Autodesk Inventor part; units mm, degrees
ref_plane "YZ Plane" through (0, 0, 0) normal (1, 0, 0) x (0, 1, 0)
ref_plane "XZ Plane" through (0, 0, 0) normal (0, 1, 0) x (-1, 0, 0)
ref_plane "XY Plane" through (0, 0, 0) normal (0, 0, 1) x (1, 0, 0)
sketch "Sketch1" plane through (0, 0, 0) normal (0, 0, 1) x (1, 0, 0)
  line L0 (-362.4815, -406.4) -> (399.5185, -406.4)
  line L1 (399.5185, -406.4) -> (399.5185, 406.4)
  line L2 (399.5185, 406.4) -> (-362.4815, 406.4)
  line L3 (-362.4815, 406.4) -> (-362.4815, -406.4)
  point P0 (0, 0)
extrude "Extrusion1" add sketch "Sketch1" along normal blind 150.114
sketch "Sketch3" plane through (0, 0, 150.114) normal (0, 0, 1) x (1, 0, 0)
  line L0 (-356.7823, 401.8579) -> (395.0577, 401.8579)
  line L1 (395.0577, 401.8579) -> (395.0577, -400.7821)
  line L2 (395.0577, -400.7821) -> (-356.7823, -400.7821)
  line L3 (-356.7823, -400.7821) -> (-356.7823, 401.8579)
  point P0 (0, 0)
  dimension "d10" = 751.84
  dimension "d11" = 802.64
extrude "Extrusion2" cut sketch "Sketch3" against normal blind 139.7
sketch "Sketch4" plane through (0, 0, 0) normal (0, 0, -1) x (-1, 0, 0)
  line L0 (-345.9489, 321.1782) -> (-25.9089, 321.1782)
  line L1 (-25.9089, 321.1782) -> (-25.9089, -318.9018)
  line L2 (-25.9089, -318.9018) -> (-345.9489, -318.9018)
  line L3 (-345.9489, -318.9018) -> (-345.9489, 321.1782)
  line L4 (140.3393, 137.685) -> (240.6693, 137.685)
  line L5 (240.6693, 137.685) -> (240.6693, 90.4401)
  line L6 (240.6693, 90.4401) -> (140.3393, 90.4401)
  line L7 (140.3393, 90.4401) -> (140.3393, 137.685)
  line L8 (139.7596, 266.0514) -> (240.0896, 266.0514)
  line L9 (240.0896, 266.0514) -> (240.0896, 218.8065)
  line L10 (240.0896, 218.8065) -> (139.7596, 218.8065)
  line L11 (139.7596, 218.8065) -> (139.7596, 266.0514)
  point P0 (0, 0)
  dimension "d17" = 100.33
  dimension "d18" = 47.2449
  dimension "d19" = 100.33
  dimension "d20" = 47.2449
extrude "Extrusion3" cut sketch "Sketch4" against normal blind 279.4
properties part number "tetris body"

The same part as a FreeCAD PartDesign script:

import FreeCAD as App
import Part
import Sketcher
Q = App.Units.Quantity

doc = App.newDocument("Part")
body = doc.addObject("PartDesign::Body", "Body")

# Sketch on XY plane
sketch1 = body.newObject("Sketcher::SketchObject", "Sketch")
sketch1.AttachmentSupport = (doc.getObject("XY_Plane"), [""])
sketch1.MapMode = "FlatFace"
sketch1.addGeometry([
    Part.LineSegment(App.Vector(-362.4815, 406.4, 0), App.Vector(-362.4815, -406.4, 0)),
    Part.LineSegment(App.Vector(-362.4815, -406.4, 0), App.Vector(399.5185, -406.4, 0)),
    Part.LineSegment(App.Vector(399.5185, -406.4, 0), App.Vector(399.5185, 406.4, 0)),
    Part.LineSegment(App.Vector(399.5185, 406.4, 0), App.Vector(-362.4815, 406.4, 0)),
], False)
sketch1.addConstraint([
    Sketcher.Constraint("Coincident", 0, 2, 1, 1),
    Sketcher.Constraint("Coincident", 1, 2, 2, 1),
    Sketcher.Constraint("Coincident", 2, 2, 3, 1),
    Sketcher.Constraint("Coincident", 3, 2, 0, 1),
    Sketcher.Constraint("Vertical", 0),
    Sketcher.Constraint("Horizontal", 1),
    Sketcher.Constraint("Vertical", 2),
    Sketcher.Constraint("Horizontal", 3),
    Sketcher.Constraint("DistanceX", 1, 1, 1, 2, Q("30 in")),
    Sketcher.Constraint("DistanceY", 0, 2, 0, 1, Q("32 in")),
    Sketcher.Constraint("DistanceY", 0, 2, -1, 1, Q("16 in")),
    Sketcher.Constraint("DistanceX", 0, 2, -1, 1, Q("362.4815 mm")),
])
pad1 = body.newObject("PartDesign::Pad", "Pad")
pad1.Profile = sketch1
pad1.Length = Q("5.91 in")

# Sketch on XY plane
sketch2 = body.newObject("Sketcher::SketchObject", "Sketch001")
sketch2.AttachmentSupport = (doc.getObject("XY_Plane"), [""])
sketch2.MapMode = "FlatFace"
sketch2.AttachmentOffset = App.Placement(App.Vector(0, 0, 5.91 * 25.4), App.Rotation())
sketch2.addGeometry([
    Part.LineSegment(App.Vector(395.0577, 401.8579, 0), App.Vector(-356.7823, 401.8579, 0)),
    Part.LineSegment(App.Vector(-356.7823, 401.8579, 0), App.Vector(-356.7823, -400.7821, 0)),
    Part.LineSegment(App.Vector(-356.7823, -400.7821, 0), App.Vector(395.0577, -400.7821, 0)),
    Part.LineSegment(App.Vector(395.0577, -400.7821, 0), App.Vector(395.0577, 401.8579, 0)),
], False)
sketch2.addConstraint([
    Sketcher.Constraint("Coincident", 0, 2, 1, 1),
    Sketcher.Constraint("Coincident", 1, 2, 2, 1),
    Sketcher.Constraint("Coincident", 2, 2, 3, 1),
    Sketcher.Constraint("Coincident", 3, 2, 0, 1),
    Sketcher.Constraint("Horizontal", 0),
    Sketcher.Constraint("Vertical", 1),
    Sketcher.Constraint("Horizontal", 2),
    Sketcher.Constraint("Vertical", 3),
    Sketcher.Constraint("DistanceX", 0, 2, 0, 1, Q("29.6 in")),
    Sketcher.Constraint("DistanceY", 1, 2, 1, 1, Q("31.6 in")),
    Sketcher.Constraint("DistanceX", 0, 2, -1, 1, Q("356.7823 mm")),
    Sketcher.Constraint("DistanceY", -1, 1, 0, 2, Q("401.858 mm")),
])
pocket1 = body.newObject("PartDesign::Pocket", "Pocket")
pocket1.Profile = sketch2
pocket1.Length = Q("5.5 in")

# Sketch on XY plane
sketch3 = body.newObject("Sketcher::SketchObject", "Sketch002")
sketch3.AttachmentSupport = (doc.getObject("XY_Plane"), [""])
sketch3.MapMode = "FlatFace"
sketch3.addGeometry([
    Part.LineSegment(App.Vector(25.9089, 321.1782, 0), App.Vector(345.9489, 321.1782, 0)),  # 0
    Part.LineSegment(App.Vector(345.9489, 321.1782, 0), App.Vector(345.9489, -318.9018, 0)),  # 1
    Part.LineSegment(App.Vector(345.9489, -318.9018, 0), App.Vector(25.9089, -318.9018, 0)),  # 2
    Part.LineSegment(App.Vector(25.9089, -318.9018, 0), App.Vector(25.9089, 321.1782, 0)),  # 3
    Part.LineSegment(App.Vector(-240.6693, 137.685, 0), App.Vector(-140.3393, 137.685, 0)),  # 4
    Part.LineSegment(App.Vector(-140.3393, 137.685, 0), App.Vector(-140.3393, 90.4401, 0)),  # 5
    Part.LineSegment(App.Vector(-140.3393, 90.4401, 0), App.Vector(-240.6693, 90.4401, 0)),  # 6
    Part.LineSegment(App.Vector(-240.6693, 90.4401, 0), App.Vector(-240.6693, 137.685, 0)),  # 7
    Part.LineSegment(App.Vector(-240.0896, 266.0514, 0), App.Vector(-139.7596, 266.0514, 0)),  # 8
    Part.LineSegment(App.Vector(-139.7596, 266.0514, 0), App.Vector(-139.7596, 218.8065, 0)),  # 9
    Part.LineSegment(App.Vector(-139.7596, 218.8065, 0), App.Vector(-240.0896, 218.8065, 0)),  # 10
    Part.LineSegment(App.Vector(-240.0896, 218.8065, 0), App.Vector(-240.0896, 266.0514, 0)),  # 11
], False)
sketch3.addConstraint([
    Sketcher.Constraint("Coincident", 0, 2, 1, 1),
    Sketcher.Constraint("Coincident", 1, 2, 2, 1),
    Sketcher.Constraint("Coincident", 2, 2, 3, 1),
    Sketcher.Constraint("Coincident", 3, 2, 0, 1),
    Sketcher.Constraint("Coincident", 4, 2, 5, 1),
    Sketcher.Constraint("Coincident", 5, 2, 6, 1),
    Sketcher.Constraint("Coincident", 6, 2, 7, 1),
    Sketcher.Constraint("Coincident", 7, 2, 4, 1),
    Sketcher.Constraint("Coincident", 8, 2, 9, 1),
    Sketcher.Constraint("Coincident", 9, 2, 10, 1),
    Sketcher.Constraint("Coincident", 10, 2, 11, 1),
    Sketcher.Constraint("Coincident", 11, 2, 8, 1),
    Sketcher.Constraint("Horizontal", 0),
    Sketcher.Constraint("Vertical", 1),
    Sketcher.Constraint("Horizontal", 2),
    Sketcher.Constraint("Vertical", 3),
    Sketcher.Constraint("Horizontal", 4),
    Sketcher.Constraint("Vertical", 5),
    Sketcher.Constraint("Horizontal", 6),
    Sketcher.Constraint("Vertical", 7),
    Sketcher.Constraint("Horizontal", 8),
    Sketcher.Constraint("Vertical", 9),
    Sketcher.Constraint("Horizontal", 10),
    Sketcher.Constraint("Vertical", 11),
    Sketcher.Constraint("Equal", 6, 8),
    Sketcher.Constraint("Equal", 7, 9),
    Sketcher.Constraint("DistanceX", 4, 1, 4, 2, Q("3.95 in")),
    Sketcher.Constraint("DistanceX", 0, 1, 0, 2, Q("12.6 in")),
    Sketcher.Constraint("DistanceY", 1, 2, 1, 1, Q("25.2 in")),
    Sketcher.Constraint("DistanceY", 5, 2, 5, 1, Q("47.245 mm")),
    Sketcher.Constraint("DistanceY", -1, 1, 0, 2, Q("12.6448 in")),
    Sketcher.Constraint("DistanceX", 4, 2, 3, 2, Q("6.5452 in")),
    Sketcher.Constraint("DistanceY", 4, 2, 8, 2, Q("5.0538 in")),
    Sketcher.Constraint("DistanceX", -1, 1, 0, 2, Q("345.949 mm")),
    Sketcher.Constraint("DistanceY", -1, 1, 4, 2, Q("137.685 mm")),
    Sketcher.Constraint("DistanceX", 8, 2, -1, 1, Q("139.7596 mm")),
])
pocket2 = body.newObject("PartDesign::Pocket", "Pocket001")
pocket2.Profile = sketch3
pocket2.Length = Q("11 in")
pocket2.Reversed = True

doc.recompute()
